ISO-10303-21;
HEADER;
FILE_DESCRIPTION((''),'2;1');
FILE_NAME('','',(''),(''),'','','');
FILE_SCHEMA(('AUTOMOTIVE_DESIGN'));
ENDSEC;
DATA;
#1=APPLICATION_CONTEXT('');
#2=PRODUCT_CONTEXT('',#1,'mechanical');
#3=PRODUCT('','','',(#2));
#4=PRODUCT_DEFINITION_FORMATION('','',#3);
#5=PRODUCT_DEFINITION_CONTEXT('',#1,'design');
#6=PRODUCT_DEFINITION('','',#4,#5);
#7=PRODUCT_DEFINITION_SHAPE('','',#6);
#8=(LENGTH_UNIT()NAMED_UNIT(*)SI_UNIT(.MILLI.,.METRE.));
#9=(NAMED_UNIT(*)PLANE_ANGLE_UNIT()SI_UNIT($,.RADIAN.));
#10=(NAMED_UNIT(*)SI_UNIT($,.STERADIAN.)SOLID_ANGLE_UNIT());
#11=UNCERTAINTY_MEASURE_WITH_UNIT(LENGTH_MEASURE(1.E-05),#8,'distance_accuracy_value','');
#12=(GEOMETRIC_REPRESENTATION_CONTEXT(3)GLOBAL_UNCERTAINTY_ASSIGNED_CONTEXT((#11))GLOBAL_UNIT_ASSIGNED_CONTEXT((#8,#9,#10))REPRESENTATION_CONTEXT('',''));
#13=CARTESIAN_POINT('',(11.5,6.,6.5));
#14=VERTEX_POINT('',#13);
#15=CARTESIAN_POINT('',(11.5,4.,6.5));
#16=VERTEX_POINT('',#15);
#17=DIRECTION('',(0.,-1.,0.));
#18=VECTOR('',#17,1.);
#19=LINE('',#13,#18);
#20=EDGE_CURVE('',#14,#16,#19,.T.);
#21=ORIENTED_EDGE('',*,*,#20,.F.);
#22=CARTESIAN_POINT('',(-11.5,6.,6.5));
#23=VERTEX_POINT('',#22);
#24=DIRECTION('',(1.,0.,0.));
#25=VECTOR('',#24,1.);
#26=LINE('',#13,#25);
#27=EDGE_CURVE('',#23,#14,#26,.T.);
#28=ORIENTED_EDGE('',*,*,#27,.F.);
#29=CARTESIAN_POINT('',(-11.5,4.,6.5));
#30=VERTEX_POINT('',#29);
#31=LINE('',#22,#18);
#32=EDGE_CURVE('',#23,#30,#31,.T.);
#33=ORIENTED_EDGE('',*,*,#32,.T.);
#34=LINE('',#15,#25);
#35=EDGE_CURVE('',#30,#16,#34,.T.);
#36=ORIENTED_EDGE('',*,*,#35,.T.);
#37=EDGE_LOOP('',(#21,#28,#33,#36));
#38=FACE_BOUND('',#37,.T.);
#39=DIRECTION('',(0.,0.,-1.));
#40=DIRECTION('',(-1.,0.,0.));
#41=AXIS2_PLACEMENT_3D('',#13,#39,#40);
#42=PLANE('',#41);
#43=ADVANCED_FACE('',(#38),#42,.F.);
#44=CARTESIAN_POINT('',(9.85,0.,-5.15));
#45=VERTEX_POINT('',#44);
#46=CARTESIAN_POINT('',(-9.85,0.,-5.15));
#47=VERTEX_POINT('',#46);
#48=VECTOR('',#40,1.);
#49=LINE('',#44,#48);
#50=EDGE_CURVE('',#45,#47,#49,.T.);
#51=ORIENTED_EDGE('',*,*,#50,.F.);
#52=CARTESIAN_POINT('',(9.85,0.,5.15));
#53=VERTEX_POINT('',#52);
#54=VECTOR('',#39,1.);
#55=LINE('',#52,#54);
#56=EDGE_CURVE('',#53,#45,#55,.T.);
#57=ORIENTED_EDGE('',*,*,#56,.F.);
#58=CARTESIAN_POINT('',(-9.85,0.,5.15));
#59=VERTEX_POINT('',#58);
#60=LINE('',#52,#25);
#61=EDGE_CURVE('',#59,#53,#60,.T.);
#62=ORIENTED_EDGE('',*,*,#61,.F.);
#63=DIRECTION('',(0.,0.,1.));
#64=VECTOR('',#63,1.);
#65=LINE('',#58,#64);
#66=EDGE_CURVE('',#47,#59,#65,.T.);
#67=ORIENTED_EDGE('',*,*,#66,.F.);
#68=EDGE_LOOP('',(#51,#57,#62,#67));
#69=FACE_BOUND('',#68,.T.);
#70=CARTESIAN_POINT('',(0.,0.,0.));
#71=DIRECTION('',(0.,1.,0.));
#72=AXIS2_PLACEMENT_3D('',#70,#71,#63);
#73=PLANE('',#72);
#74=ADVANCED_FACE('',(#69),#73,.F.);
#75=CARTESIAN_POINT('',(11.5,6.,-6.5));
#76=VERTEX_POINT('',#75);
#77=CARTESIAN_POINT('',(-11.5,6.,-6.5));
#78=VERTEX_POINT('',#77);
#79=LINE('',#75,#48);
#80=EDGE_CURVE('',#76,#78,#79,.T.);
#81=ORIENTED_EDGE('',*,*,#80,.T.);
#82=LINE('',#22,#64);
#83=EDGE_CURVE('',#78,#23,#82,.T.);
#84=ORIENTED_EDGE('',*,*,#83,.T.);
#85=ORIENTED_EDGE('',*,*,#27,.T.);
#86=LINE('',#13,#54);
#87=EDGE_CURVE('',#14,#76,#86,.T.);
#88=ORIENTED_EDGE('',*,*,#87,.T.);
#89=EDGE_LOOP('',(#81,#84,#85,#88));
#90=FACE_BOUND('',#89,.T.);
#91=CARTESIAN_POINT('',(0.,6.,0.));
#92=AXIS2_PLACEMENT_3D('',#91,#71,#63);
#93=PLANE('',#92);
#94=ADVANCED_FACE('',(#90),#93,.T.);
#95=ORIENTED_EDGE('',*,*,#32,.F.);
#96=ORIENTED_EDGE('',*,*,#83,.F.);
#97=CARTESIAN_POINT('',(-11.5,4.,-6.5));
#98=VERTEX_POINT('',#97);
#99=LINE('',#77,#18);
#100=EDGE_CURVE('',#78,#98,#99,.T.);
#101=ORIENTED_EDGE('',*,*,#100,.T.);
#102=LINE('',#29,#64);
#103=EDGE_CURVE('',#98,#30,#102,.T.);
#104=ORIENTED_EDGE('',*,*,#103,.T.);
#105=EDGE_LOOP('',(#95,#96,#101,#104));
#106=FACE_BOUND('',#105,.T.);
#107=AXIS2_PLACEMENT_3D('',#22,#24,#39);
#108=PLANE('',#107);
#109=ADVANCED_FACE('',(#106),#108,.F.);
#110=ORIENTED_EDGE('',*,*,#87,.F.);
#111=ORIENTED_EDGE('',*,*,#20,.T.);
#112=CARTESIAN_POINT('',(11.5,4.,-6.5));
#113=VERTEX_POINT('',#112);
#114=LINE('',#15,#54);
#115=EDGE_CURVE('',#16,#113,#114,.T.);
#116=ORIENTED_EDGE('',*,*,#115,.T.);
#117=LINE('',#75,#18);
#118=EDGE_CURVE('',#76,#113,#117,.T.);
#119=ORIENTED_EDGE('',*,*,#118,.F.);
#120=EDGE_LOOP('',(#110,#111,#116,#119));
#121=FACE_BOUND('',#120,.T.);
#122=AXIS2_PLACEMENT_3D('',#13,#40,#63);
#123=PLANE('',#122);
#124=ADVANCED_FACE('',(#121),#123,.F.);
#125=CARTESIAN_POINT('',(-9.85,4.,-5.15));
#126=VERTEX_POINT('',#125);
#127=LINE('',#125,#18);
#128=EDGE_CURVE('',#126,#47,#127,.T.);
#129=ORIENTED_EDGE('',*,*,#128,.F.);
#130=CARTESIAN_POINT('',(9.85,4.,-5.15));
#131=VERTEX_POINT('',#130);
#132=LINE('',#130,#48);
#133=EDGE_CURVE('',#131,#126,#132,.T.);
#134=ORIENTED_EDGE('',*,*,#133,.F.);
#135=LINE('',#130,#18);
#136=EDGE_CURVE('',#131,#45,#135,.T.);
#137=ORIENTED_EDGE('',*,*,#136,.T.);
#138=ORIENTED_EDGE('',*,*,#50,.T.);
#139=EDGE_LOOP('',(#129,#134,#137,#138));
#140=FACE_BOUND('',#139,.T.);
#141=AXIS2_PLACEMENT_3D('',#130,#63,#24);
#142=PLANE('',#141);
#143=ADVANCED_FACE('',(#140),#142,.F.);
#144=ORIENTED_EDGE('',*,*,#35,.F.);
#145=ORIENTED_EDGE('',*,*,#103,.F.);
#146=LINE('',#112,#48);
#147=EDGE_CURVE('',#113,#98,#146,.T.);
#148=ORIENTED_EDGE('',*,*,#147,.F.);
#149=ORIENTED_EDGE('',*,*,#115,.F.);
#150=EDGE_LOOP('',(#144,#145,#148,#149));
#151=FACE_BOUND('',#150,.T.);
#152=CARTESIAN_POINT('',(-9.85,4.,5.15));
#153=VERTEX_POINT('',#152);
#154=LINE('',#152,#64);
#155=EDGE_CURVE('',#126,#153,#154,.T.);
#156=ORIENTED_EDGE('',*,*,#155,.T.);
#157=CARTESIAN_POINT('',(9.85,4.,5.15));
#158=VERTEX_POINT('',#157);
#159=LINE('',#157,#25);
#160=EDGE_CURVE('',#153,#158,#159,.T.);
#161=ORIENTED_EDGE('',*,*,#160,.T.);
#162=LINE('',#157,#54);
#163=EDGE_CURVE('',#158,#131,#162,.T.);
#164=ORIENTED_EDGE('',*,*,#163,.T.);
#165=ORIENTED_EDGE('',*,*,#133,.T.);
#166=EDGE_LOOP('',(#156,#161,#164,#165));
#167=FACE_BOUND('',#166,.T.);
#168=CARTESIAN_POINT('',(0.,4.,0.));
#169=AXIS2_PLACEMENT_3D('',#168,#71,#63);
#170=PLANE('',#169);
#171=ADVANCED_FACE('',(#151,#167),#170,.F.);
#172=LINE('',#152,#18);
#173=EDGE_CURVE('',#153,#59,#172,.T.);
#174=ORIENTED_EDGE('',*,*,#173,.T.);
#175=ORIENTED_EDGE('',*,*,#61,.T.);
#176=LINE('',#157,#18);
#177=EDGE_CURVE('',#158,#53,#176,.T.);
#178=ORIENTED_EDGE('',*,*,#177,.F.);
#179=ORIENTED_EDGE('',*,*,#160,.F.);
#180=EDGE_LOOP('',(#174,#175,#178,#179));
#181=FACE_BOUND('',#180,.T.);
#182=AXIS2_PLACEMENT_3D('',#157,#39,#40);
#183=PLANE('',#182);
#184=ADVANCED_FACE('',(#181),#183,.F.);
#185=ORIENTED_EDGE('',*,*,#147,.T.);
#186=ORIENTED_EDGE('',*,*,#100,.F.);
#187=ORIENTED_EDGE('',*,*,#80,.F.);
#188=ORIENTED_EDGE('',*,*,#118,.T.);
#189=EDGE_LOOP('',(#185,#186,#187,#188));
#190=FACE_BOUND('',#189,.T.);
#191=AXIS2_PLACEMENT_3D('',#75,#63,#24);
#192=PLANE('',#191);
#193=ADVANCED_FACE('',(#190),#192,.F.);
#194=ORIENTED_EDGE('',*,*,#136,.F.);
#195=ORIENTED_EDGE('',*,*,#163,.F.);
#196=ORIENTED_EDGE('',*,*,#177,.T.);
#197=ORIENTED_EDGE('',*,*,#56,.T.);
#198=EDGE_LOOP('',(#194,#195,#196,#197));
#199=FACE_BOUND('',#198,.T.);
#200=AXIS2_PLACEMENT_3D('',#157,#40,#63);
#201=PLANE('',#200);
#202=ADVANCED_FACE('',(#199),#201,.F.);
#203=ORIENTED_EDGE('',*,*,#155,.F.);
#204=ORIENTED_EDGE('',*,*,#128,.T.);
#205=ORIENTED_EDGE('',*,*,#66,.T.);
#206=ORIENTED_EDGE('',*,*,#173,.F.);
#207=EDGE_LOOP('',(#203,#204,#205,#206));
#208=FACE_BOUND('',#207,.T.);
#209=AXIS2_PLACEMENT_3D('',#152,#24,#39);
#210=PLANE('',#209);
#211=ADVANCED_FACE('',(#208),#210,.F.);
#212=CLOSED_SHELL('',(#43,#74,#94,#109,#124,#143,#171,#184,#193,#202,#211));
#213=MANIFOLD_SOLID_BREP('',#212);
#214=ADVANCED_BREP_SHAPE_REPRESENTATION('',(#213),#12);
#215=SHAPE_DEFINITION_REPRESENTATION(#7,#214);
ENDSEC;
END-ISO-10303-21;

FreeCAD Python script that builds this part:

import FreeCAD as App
import Part
import Sketcher

V = App.Vector
Q = App.Units.Quantity

doc = App.newDocument("Part")
params = doc.addObject("Spreadsheet::Sheet", "Params")
for row, (alias, value) in enumerate([
    ("sketch1_width", "19.7 mm"),
    ("sketch1_height", "10.3 mm"),
    ("pad1_length", "4 mm"),
    ("sketch2_width", "23 mm"),
    ("sketch2_height", "13 mm"),
    ("pad2_length", "2 mm"),
], start=1):
    params.set(f"A{row}", alias)
    params.set(f"B{row}", "=" + value)
    params.setAlias(f"B{row}", alias)

body = doc.addObject("PartDesign::Body", "Body")

# Sketch on XZ plane
sketch1 = body.newObject("Sketcher::SketchObject", "Sketch")
sketch1.AttachmentSupport = (doc.getObject("XZ_Plane"), [""])
sketch1.MapMode = "FlatFace"
sketch1.addGeometry([
    Part.LineSegment(V(-10, -5, 0), V(-10, 5, 0)),
    Part.LineSegment(V(-10, 5, 0), V(10, 5, 0)),
    Part.LineSegment(V(10, 5, 0), V(10, -5, 0)),
    Part.LineSegment(V(10, -5, 0), V(-10, -5, 0)),
], False)
sketch1.addConstraint([
    Sketcher.Constraint("Coincident", 0, 2, 1, 1),
    Sketcher.Constraint("Coincident", 1, 2, 2, 1),
    Sketcher.Constraint("Coincident", 2, 2, 3, 1),
    Sketcher.Constraint("Coincident", 3, 2, 0, 1),
    Sketcher.Constraint("Vertical", 0),
    Sketcher.Constraint("Horizontal", 1),
    Sketcher.Constraint("Vertical", 2),
    Sketcher.Constraint("Horizontal", 3),
    Sketcher.Constraint("Symmetric", 0, 2, 2, 2, -1, 1),
    Sketcher.Constraint("DistanceX", 1, 1, 1, 2, Q("19.7 mm")),
    Sketcher.Constraint("DistanceY", 0, 1, 0, 2, Q("10.3 mm")),
])
sketch1.setExpression("Constraints[9]", "Params.sketch1_width")
sketch1.setExpression("Constraints[10]", "Params.sketch1_height")
pad1 = body.newObject("PartDesign::Pad", "Pad")
pad1.Profile = sketch1
pad1.setExpression("Length", "Params.pad1_length")
pad1.Reversed = True

# Sketch on XZ plane
sketch2 = body.newObject("Sketcher::SketchObject", "Sketch001")
sketch2.AttachmentSupport = (doc.getObject("XZ_Plane"), [""])
sketch2.MapMode = "FlatFace"
sketch2.AttachmentOffset = App.Placement(V(0, 0, -4), App.Rotation())
sketch2.addGeometry([
    Part.LineSegment(V(-12, -6, 0), V(-12, 6, 0)),
    Part.LineSegment(V(-12, 6, 0), V(12, 6, 0)),
    Part.LineSegment(V(12, 6, 0), V(12, -6, 0)),
    Part.LineSegment(V(12, -6, 0), V(-12, -6, 0)),
], False)
sketch2.addConstraint([
    Sketcher.Constraint("Coincident", 0, 2, 1, 1),
    Sketcher.Constraint("Coincident", 1, 2, 2, 1),
    Sketcher.Constraint("Coincident", 2, 2, 3, 1),
    Sketcher.Constraint("Coincident", 3, 2, 0, 1),
    Sketcher.Constraint("Vertical", 0),
    Sketcher.Constraint("Horizontal", 1),
    Sketcher.Constraint("Vertical", 2),
    Sketcher.Constraint("Horizontal", 3),
    Sketcher.Constraint("Symmetric", 0, 2, 2, 2, -1, 1),
    Sketcher.Constraint("DistanceX", 1, 1, 1, 2, Q("23 mm")),
    Sketcher.Constraint("DistanceY", 0, 1, 0, 2, Q("13 mm")),
])
sketch2.setExpression("Constraints[9]", "Params.sketch2_width")
sketch2.setExpression("Constraints[10]", "Params.sketch2_height")
pad2 = body.newObject("PartDesign::Pad", "Pad001")
pad2.Profile = sketch2
pad2.setExpression("Length", "Params.pad2_length")
pad2.Reversed = True

doc.recompute()
